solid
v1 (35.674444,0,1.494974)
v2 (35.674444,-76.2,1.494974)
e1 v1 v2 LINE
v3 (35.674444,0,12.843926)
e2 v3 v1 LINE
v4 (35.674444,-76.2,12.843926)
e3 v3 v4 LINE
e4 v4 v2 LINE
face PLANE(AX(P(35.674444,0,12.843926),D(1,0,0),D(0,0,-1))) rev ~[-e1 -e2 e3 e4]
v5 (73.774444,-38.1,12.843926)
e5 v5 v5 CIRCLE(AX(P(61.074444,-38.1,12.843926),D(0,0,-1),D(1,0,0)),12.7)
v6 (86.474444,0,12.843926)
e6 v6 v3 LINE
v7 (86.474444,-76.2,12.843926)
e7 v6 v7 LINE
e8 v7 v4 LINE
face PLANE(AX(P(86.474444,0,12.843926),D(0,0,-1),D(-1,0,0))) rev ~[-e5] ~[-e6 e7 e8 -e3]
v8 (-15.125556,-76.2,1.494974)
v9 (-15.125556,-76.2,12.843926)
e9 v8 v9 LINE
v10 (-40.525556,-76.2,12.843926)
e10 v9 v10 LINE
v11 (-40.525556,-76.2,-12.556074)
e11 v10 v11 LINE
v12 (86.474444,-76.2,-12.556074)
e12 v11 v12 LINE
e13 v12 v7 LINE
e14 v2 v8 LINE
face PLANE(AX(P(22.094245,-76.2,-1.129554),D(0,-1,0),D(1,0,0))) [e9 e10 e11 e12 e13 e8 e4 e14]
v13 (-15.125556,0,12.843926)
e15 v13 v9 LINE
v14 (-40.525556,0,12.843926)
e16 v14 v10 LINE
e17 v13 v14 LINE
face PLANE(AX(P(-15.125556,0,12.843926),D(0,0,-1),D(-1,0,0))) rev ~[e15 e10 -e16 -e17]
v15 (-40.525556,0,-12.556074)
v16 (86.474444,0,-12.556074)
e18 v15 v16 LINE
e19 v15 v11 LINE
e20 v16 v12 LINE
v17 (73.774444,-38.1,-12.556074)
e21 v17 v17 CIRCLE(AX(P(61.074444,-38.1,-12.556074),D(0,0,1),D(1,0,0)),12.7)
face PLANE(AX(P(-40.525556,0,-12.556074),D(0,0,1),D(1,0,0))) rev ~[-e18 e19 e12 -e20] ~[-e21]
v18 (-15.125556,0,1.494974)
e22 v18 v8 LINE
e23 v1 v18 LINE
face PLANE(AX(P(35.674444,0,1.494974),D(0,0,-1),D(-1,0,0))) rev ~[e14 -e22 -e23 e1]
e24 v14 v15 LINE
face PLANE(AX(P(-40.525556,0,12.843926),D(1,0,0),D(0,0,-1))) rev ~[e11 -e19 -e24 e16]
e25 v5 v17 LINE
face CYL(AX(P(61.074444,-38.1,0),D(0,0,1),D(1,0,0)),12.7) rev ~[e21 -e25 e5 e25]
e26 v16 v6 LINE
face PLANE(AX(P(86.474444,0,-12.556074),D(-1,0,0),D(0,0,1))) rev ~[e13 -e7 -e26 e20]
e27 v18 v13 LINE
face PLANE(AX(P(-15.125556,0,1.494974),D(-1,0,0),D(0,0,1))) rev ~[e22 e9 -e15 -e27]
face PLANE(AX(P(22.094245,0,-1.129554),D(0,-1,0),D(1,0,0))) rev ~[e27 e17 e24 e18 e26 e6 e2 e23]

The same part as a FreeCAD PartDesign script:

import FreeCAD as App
import Part
import Sketcher
Q = App.Units.Quantity

doc = App.newDocument("Part")
body = doc.addObject("PartDesign::Body", "Body")

# Sketch on XZ plane
sketch1 = body.newObject("Sketcher::SketchObject", "Sketch")
sketch1.AttachmentSupport = (doc.getObject("XZ_Plane"), [""])
sketch1.MapMode = "FlatFace"
sketch1.addGeometry([
    Part.LineSegment(App.Vector(-15, 13, 0), App.Vector(-41, 13, 0)),  # 0
    Part.LineSegment(App.Vector(-41, 13, 0), App.Vector(-41, -13, 0)),  # 1
    Part.LineSegment(App.Vector(-41, -13, 0), App.Vector(86, -13, 0)),  # 2
    Part.LineSegment(App.Vector(86, -13, 0), App.Vector(86, 13, 0)),  # 3
    Part.LineSegment(App.Vector(86, 13, 0), App.Vector(36, 13, 0)),  # 4
    Part.LineSegment(App.Vector(36, 13, 0), App.Vector(36, 1, 0)),  # 5
    Part.LineSegment(App.Vector(36, 1, 0), App.Vector(-15, 1, 0)),  # 6
    Part.LineSegment(App.Vector(-15, 1, 0), App.Vector(-15, 13, 0)),  # 7
], False)
sketch1.addConstraint([
    Sketcher.Constraint("Coincident", 0, 2, 1, 1),
    Sketcher.Constraint("Coincident", 1, 2, 2, 1),
    Sketcher.Constraint("Coincident", 2, 2, 3, 1),
    Sketcher.Constraint("Coincident", 3, 2, 4, 1),
    Sketcher.Constraint("Coincident", 4, 2, 5, 1),
    Sketcher.Constraint("Coincident", 5, 2, 6, 1),
    Sketcher.Constraint("Coincident", 6, 2, 7, 1),
    Sketcher.Constraint("Coincident", 7, 2, 0, 1),
    Sketcher.Constraint("Horizontal", 0),
    Sketcher.Constraint("Vertical", 1),
    Sketcher.Constraint("Horizontal", 2),
    Sketcher.Constraint("Vertical", 3),
    Sketcher.Constraint("Horizontal", 4),
    Sketcher.Constraint("Vertical", 5),
    Sketcher.Constraint("Horizontal", 6),
    Sketcher.Constraint("Vertical", 7),
    Sketcher.Constraint("Horizontal", 0, 2, 3, 2),
    Sketcher.Constraint("Equal", 4, 6),
    Sketcher.Constraint("Equal", 0, 1),
    Sketcher.Constraint("DistanceX", 0, 2, 0, 1, Q("1 in")),
    Sketcher.Constraint("DistanceX", 2, 1, 2, 2, Q("5 in")),
    Sketcher.Constraint("DistanceY", 5, 2, 5, 1, 11.348952),
    Sketcher.Constraint("DistanceX", 0, 2, -1, 1, 40.525556),
    Sketcher.Constraint("DistanceY", -1, 1, 0, 2, 12.843926),
])
pad1 = body.newObject("PartDesign::Pad", "Pad")
pad1.Profile = sketch1
pad1.Length = Q("3 in")

# Sketch on XY plane
sketch2 = body.newObject("Sketcher::SketchObject", "Sketch001")
sketch2.AttachmentSupport = (doc.getObject("XY_Plane"), [""])
sketch2.MapMode = "FlatFace"
sketch2.addGeometry(Part.Circle(App.Vector(61, -38, 0), App.Vector(0, 0, 1), 13), False)
sketch2.addConstraint([
    Sketcher.Constraint("Diameter", 0, Q("1 in")),
    Sketcher.Constraint("DistanceY", 0, 3, -1, 1, Q("1.5 in")),
    Sketcher.Constraint("DistanceX", -1, 1, 0, 3, 61.074444),
])
pocket1 = body.newObject("PartDesign::Pocket", "Pocket")
pocket1.Profile = sketch2
pocket1.Length = Q("2 in")
pocket1.Reversed = True

# Sketch on XY plane
sketch3 = body.newObject("Sketcher::SketchObject", "Sketch002")
sketch3.AttachmentSupport = (doc.getObject("XY_Plane"), [""])
sketch3.MapMode = "FlatFace"
sketch3.addGeometry(Part.Circle(App.Vector(61, -38, 0), App.Vector(0, 0, 1), 13), False)
sketch3.addConstraint([
    Sketcher.Constraint("Diameter", 0, Q("1 in")),
    Sketcher.Constraint("DistanceY", 0, 3, -1, 1, Q("1.5 in")),
    Sketcher.Constraint("DistanceX", -1, 1, 0, 3, 61.074444),
])
pocket2 = body.newObject("PartDesign::Pocket", "Pocket001")
pocket2.Profile = sketch3
pocket2.Length = Q("2 in")

doc.recompute()
